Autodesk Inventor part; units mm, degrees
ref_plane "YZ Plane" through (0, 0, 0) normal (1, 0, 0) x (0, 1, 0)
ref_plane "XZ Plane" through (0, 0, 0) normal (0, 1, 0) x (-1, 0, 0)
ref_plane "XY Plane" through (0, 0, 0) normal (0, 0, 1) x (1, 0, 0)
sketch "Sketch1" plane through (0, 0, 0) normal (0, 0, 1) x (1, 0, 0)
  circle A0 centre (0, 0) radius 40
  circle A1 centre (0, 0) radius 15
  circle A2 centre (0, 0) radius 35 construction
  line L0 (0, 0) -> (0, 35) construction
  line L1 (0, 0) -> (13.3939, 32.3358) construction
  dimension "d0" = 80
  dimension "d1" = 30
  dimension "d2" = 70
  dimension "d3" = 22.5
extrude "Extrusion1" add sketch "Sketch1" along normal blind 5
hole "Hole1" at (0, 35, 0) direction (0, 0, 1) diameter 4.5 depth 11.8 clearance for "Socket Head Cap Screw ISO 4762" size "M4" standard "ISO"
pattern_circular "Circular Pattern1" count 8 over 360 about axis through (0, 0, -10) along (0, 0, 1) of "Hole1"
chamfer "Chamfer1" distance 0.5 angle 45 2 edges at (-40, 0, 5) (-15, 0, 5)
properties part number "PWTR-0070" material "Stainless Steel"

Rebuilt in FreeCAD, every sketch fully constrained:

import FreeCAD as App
import Part
import Sketcher
Q = App.Units.Quantity


def edges_at(feature, points):
    """Names of the edges that pass closest to the given points."""
    edges = feature.Shape.Edges
    near = lambda p: min(range(len(edges)), key=lambda i: edges[i].distToShape(Part.Vertex(*p))[0])
    return sorted({f"Edge{near(p) + 1}" for p in points})

doc = App.newDocument("Part")
body = doc.addObject("PartDesign::Body", "Body")

# Sketch on XY plane
sketch1 = body.newObject("Sketcher::SketchObject", "Sketch")
sketch1.AttachmentSupport = (doc.getObject("XY_Plane"), [""])
sketch1.MapMode = "FlatFace"
sketch1.addGeometry([
    Part.Circle(App.Vector(0, 0, 0), App.Vector(0, 0, 1), 40),
    Part.Circle(App.Vector(0, 0, 0), App.Vector(0, 0, 1), 15),
], False)
sketch1.addConstraint([
    Sketcher.Constraint("Coincident", 0, 3, -1, 1),
    Sketcher.Constraint("Coincident", 1, 3, -1, 1),
    Sketcher.Constraint("Diameter", 0, Q("80 mm")),
    Sketcher.Constraint("Diameter", 1, Q("30 mm")),
])
pad1 = body.newObject("PartDesign::Pad", "Pad")
pad1.Profile = sketch1
pad1.Length = 5

# Sketch on XY plane
sketch2 = body.newObject("Sketcher::SketchObject", "Sketch001")
sketch2.AttachmentSupport = (doc.getObject("XY_Plane"), [""])
sketch2.MapMode = "FlatFace"
sketch2.addGeometry(Part.Circle(App.Vector(0, 35, 0), App.Vector(0, 0, 1), 2.2), False)
sketch2.addConstraint([
    Sketcher.Constraint("PointOnObject", 0, 3, -2),
    Sketcher.Constraint("Diameter", 0, Q("4.5 mm")),
    Sketcher.Constraint("DistanceY", -1, 1, 0, 3, Q("35 mm")),
])
doc.recompute()
hole = body.newObject("PartDesign::Hole", "Hole")
hole.Profile = sketch2
hole.ThreadType = "None"
hole.Diameter = 4.5
hole.DepthType = "Dimension"
hole.Depth = 11.8
hole.DrillPoint = "Flat"
hole.Reversed = True
doc.recompute()

polarpattern = body.newObject("PartDesign::PolarPattern", "PolarPattern")
polarpattern.Originals = [hole]
polarpattern.Axis = (doc.getObject("Z_Axis"), [""])
polarpattern.Angle = 360
polarpattern.Occurrences = 8
body.Tip = polarpattern
doc.recompute()

chamfer = body.newObject("PartDesign::Chamfer", "Chamfer")
chamfer.Base = (polarpattern, edges_at(polarpattern, [(-40, 0, 5), (-15, 0, 5)]))
chamfer.Size = 0.5

doc.recompute()
